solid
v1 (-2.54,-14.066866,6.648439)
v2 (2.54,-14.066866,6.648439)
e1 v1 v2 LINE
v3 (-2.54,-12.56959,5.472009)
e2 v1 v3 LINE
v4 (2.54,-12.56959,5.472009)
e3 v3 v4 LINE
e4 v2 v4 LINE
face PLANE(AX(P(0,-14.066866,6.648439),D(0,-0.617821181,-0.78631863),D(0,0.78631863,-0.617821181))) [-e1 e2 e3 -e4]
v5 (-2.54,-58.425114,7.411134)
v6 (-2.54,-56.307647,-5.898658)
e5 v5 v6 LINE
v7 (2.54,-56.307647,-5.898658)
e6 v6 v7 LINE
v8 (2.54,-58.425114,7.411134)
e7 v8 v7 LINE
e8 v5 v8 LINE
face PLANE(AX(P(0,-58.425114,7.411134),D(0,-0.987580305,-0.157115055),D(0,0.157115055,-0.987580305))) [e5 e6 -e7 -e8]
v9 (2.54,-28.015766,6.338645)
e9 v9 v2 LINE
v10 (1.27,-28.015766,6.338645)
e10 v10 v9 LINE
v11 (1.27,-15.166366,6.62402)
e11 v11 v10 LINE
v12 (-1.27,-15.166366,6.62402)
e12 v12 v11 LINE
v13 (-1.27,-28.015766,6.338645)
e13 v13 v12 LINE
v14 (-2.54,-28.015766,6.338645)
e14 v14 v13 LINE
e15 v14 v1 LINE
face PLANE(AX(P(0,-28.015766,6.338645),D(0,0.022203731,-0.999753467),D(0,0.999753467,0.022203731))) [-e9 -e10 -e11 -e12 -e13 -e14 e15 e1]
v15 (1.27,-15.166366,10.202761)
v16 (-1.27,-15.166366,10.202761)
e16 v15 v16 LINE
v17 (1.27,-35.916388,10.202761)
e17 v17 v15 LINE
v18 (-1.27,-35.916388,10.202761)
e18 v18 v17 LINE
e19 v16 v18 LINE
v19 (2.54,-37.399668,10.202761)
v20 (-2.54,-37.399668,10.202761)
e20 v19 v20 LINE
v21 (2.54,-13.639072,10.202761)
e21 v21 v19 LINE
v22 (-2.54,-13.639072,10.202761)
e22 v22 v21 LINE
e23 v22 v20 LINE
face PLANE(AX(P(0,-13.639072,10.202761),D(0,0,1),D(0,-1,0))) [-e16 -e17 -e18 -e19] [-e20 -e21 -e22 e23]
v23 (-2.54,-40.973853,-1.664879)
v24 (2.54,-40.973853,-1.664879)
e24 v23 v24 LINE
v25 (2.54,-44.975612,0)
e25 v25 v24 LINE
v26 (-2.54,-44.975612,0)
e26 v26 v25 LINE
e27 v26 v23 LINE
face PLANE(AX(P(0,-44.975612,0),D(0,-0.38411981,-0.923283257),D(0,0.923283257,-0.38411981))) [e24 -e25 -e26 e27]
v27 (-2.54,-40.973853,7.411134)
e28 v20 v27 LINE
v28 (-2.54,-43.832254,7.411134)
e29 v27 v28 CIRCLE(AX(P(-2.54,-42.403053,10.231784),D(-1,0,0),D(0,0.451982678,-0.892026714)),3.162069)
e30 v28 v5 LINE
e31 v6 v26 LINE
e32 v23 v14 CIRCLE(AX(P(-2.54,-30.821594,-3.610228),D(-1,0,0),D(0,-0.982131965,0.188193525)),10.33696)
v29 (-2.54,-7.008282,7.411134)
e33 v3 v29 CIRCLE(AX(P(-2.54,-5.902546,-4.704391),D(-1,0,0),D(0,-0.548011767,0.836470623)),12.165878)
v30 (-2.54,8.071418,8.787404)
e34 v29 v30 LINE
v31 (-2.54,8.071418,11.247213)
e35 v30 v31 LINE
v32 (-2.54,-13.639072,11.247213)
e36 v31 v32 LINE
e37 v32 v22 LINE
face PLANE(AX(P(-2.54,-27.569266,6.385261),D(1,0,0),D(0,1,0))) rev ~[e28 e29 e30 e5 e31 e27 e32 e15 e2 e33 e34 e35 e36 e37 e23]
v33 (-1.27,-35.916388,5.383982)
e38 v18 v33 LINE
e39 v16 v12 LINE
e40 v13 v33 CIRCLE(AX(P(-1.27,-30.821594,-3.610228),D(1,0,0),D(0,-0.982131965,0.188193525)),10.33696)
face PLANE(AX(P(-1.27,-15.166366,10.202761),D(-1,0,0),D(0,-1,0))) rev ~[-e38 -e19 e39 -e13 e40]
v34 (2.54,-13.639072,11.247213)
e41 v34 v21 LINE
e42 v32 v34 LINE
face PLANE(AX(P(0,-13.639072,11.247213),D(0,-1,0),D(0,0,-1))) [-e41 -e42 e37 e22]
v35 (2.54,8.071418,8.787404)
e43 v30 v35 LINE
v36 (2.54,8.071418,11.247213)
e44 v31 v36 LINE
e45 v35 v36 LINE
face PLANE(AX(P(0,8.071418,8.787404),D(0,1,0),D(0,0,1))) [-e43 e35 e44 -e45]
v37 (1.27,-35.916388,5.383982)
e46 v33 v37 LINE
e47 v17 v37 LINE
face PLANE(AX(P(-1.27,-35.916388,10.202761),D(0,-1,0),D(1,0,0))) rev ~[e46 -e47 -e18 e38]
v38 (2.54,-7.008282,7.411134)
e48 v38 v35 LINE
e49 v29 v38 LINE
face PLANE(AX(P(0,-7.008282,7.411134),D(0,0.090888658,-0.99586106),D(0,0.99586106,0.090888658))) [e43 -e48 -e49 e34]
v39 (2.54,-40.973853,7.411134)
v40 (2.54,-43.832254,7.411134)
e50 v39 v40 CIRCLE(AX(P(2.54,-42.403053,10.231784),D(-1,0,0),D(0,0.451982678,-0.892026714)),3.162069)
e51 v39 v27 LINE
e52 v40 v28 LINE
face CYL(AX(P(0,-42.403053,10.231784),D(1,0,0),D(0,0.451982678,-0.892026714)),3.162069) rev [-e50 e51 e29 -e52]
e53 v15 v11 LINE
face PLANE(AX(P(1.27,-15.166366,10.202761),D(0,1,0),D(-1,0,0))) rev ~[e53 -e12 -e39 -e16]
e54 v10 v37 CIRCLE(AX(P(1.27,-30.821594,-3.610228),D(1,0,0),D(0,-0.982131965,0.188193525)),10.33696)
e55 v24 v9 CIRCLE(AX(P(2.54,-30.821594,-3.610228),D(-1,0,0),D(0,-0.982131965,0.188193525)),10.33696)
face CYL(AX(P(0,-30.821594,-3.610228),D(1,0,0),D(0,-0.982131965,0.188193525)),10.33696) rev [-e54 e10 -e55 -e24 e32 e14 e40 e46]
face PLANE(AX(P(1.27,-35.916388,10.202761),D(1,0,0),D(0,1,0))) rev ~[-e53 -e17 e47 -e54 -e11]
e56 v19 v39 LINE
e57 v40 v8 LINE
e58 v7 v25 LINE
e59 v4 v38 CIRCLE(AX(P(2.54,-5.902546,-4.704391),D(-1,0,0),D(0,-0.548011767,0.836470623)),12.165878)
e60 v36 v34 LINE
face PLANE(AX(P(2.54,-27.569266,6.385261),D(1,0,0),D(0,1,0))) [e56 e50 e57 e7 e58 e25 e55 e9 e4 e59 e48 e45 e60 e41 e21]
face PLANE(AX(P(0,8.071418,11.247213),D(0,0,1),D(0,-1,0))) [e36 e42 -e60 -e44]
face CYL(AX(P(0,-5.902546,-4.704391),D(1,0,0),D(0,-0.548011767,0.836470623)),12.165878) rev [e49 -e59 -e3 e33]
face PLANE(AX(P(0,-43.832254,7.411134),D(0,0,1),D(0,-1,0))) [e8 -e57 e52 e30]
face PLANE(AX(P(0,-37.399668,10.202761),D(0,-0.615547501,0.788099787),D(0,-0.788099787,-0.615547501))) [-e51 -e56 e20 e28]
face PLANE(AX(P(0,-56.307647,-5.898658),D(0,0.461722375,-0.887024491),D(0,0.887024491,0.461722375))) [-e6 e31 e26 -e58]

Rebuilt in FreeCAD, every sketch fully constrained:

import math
import FreeCAD as App
import Part
import Sketcher
from FreeCAD import Vector
Q = App.Units.Quantity


def add_polygon(sketch, points):
    """Adds a closed chain of lines whose ends are joined by coincident constraints."""
    first, n = sketch.GeometryCount, len(points)
    for a, b in zip(points, points[1:] + points[:1]):
        sketch.addGeometry(Part.LineSegment(App.Vector(*a, 0), App.Vector(*b, 0)), False)
    for i in range(n):
        sketch.addConstraint(Sketcher.Constraint("Coincident", first + i, 2, first + (i + 1) % n, 1))

doc = App.newDocument("Part")
params = doc.addObject("Spreadsheet::Sheet", "Params")
for row, (alias, value) in enumerate([
    ("pad1_length", "0.2 in"),
    ("sketch2_width", "0.1 in"),
    ("pocket1_length", "1 in"),
], start=1):
    params.set(f"A{row}", alias)
    params.set(f"B{row}", "=" + value)
    params.setAlias(f"B{row}", alias)

body = doc.addObject("PartDesign::Body", "Body")

sketch1 = body.newObject("Sketcher::SketchObject", "Sketch")
sketch1.AttachmentSupport = (doc.getObject("YZ_Plane"), [""])
sketch1.MapMode = "FlatFace"
sketch1.addGeometry(Part.LineSegment(Vector(-43.8, 7.4, 0), Vector(-58.4, 7.4, 0)), False)
sketch1.addGeometry(Part.LineSegment(Vector(-58.4, 7.4, 0), Vector(-56.3, -5.9, 0)), False)
sketch1.addGeometry(Part.LineSegment(Vector(-56.3, -5.9, 0), Vector(-45, 0, 0)), False)
sketch1.addGeometry(Part.LineSegment(Vector(-45, 0, 0), Vector(-41, -1.7, 0)), False)
sketch1.addGeometry(Part.ArcOfCircle(Part.Circle(Vector(-30.8, -3.6, 0), Vector(0, 0, 1), 10.3), math.radians(74), math.radians(169)), False)
sketch1.addGeometry(Part.LineSegment(Vector(-28, 6.3, 0), Vector(-14.1, 6.6, 0)), False)
sketch1.addGeometry(Part.LineSegment(Vector(-14.1, 6.6, 0), Vector(-12.6, 5.5, 0)), False)
sketch1.addGeometry(Part.ArcOfCircle(Part.Circle(Vector(-5.9, -4.7, 0), Vector(0, 0, 1), 12.2), math.radians(95), math.radians(123)), False)
sketch1.addGeometry(Part.LineSegment(Vector(-7, 7.4, 0), Vector(8.1, 8.8, 0)), False)
sketch1.addGeometry(Part.LineSegment(Vector(8.1, 8.8, 0), Vector(8.1, 11.2, 0)), False)
sketch1.addGeometry(Part.LineSegment(Vector(8.1, 11.2, 0), Vector(-13.6, 11.2, 0)), False)
sketch1.addGeometry(Part.LineSegment(Vector(-13.6, 11.2, 0), Vector(-13.6, 10.2, 0)), False)
sketch1.addGeometry(Part.LineSegment(Vector(-13.6, 10.2, 0), Vector(-37.4, 10.2, 0)), False)
sketch1.addGeometry(Part.LineSegment(Vector(-37.4, 10.2, 0), Vector(-41, 7.4, 0)), False)
sketch1.addGeometry(Part.ArcOfCircle(Part.Circle(Vector(-42.4, 10.2, 0), Vector(0, 0, 1), 3.2), math.radians(-117), math.radians(-63)), False)
sketch1.addConstraint(Sketcher.Constraint("Coincident", 0, 2, 1, 1))
sketch1.addConstraint(Sketcher.Constraint("Coincident", 1, 2, 2, 1))
sketch1.addConstraint(Sketcher.Constraint("Coincident", 2, 2, 3, 1))
sketch1.addConstraint(Sketcher.Constraint("Coincident", 3, 2, 4, 2))
sketch1.addConstraint(Sketcher.Constraint("Coincident", 4, 1, 5, 1))
sketch1.addConstraint(Sketcher.Constraint("Coincident", 5, 2, 6, 1))
sketch1.addConstraint(Sketcher.Constraint("Coincident", 6, 2, 7, 2))
sketch1.addConstraint(Sketcher.Constraint("Tangent", 7, 1, 8, 1))
sketch1.addConstraint(Sketcher.Constraint("Coincident", 8, 2, 9, 1))
sketch1.addConstraint(Sketcher.Constraint("Coincident", 9, 2, 10, 1))
sketch1.addConstraint(Sketcher.Constraint("Coincident", 10, 2, 11, 1))
sketch1.addConstraint(Sketcher.Constraint("Coincident", 11, 2, 12, 1))
sketch1.addConstraint(Sketcher.Constraint("Coincident", 12, 2, 13, 1))
sketch1.addConstraint(Sketcher.Constraint("Coincident", 13, 2, 14, 2))
sketch1.addConstraint(Sketcher.Constraint("Coincident", 14, 1, 0, 1))
sketch1.addConstraint(Sketcher.Constraint("Horizontal", 0))
sketch1.addConstraint(Sketcher.Constraint("Vertical", 9))
sketch1.addConstraint(Sketcher.Constraint("Horizontal", 10))
sketch1.addConstraint(Sketcher.Constraint("Vertical", 11))
sketch1.addConstraint(Sketcher.Constraint("Horizontal", 12))
sketch1.addConstraint(Sketcher.Constraint("PointOnObject", 2, 2, -1))
sketch1.addConstraint(Sketcher.Constraint("Horizontal", 0, 2, 7, 1))
sketch1.addConstraint(Sketcher.Constraint("Horizontal", 7, 1, 13, 2))
sketch1.addConstraint(Sketcher.Constraint("Vertical", 3, 2, 13, 2))
sketch1.addConstraint(Sketcher.Constraint("Radius", 4, Q("10.33696 mm")))
sketch1.addConstraint(Sketcher.Constraint("Radius", 7, Q("12.165878 mm")))
sketch1.addConstraint(Sketcher.Constraint("Radius", 14, Q("3.162069 mm")))
sketch1.addConstraint(Sketcher.Constraint("DistanceX", 0, 2, 0, 1, Q("14.59286 mm")))
sketch1.addConstraint(Sketcher.Constraint("DistanceX", 10, 2, 10, 1, Q("21.71049 mm")))
sketch1.addConstraint(Sketcher.Constraint("DistanceY", 9, 1, 9, 2, Q("2.459809 mm")))
sketch1.addConstraint(Sketcher.Constraint("DistanceY", 11, 2, 11, 1, Q("1.044452 mm")))
sketch1.addConstraint(Sketcher.Constraint("DistanceX", 1, 2, 7, 3, Q("50.405101 mm")))
sketch1.addConstraint(Sketcher.Constraint("DistanceX", 14, 3, 3, 2, Q("1.429201 mm")))
sketch1.addConstraint(Sketcher.Constraint("DistanceX", 4, 1, 5, 2, Q("13.9489 mm")))
sketch1.addConstraint(Sketcher.Constraint("DistanceY", 7, 3, 6, 2, Q("10.1764 mm")))
sketch1.addConstraint(Sketcher.Constraint("DistanceX", 7, 1, 8, 2, Q("15.0797 mm")))
sketch1.addConstraint(Sketcher.Constraint("DistanceX", 12, 2, 4, 1, Q("9.383902 mm")))
sketch1.addConstraint(Sketcher.Constraint("Distance", 3, Q("4.33427 mm")))
sketch1.addConstraint(Sketcher.Constraint("Distance", 5, Q("13.95234 mm")))
sketch1.addConstraint(Sketcher.Constraint("Distance", 6, Q("1.904159 mm")))
sketch1.addConstraint(Sketcher.Constraint("DistanceX", 12, 2, 12, 1, Q("23.760596 mm")))
sketch1.addConstraint(Sketcher.Constraint("DistanceY", 7, 3, -1, 1, Q("4.704391 mm")))
sketch1.addConstraint(Sketcher.Constraint("DistanceY", 1, 2, -1, 1, Q("5.898658 mm")))
sketch1.addConstraint(Sketcher.Constraint("DistanceX", 2, 2, -1, 1, Q("44.975612 mm")))
sketch1.addConstraint(Sketcher.Constraint("DistanceY", 3, 2, -1, 1, Q("1.664879 mm")))
sketch1.addConstraint(Sketcher.Constraint("DistanceY", -1, 1, 5, 2, Q("6.648439 mm")))
sketch1.addConstraint(Sketcher.Constraint("DistanceX", 6, 2, -1, 1, Q("12.56959 mm")))
pad1 = body.newObject("PartDesign::Pad", "Pad")
pad1.Profile = sketch1
pad1.setExpression("Length", "Params.pad1_length")
pad1.Midplane = True

sketch2 = body.newObject("Sketcher::SketchObject", "Sketch001")
sketch2.AttachmentSupport = (doc.getObject("XY_Plane"), [""])
sketch2.MapMode = "FlatFace"
sketch2.AttachmentOffset = App.Placement(Vector(0, 0, 10.202761), App.Rotation())
add_polygon(sketch2, [(-1.3, -15.2), (-1.3, -35.9), (1.3, -35.9), (1.3, -15.2)])
sketch2.addConstraint(Sketcher.Constraint("Vertical", 0))
sketch2.addConstraint(Sketcher.Constraint("Horizontal", 1))
sketch2.addConstraint(Sketcher.Constraint("Vertical", 2))
sketch2.addConstraint(Sketcher.Constraint("Horizontal", 3))
sketch2.addConstraint(Sketcher.Constraint("DistanceX", 1, 1, 1, 2, Q("0.1 in")))
sketch2.addConstraint(Sketcher.Constraint("DistanceX", 0, 2, -1, 1, Q("0.05 in")))
sketch2.addConstraint(Sketcher.Constraint("DistanceY", 0, 2, 0, 1, Q("20.750022 mm")))
sketch2.addConstraint(Sketcher.Constraint("DistanceY", 0, 2, -1, 1, Q("35.916388 mm")))
sketch2.setExpression("Constraints[8]", "Params.sketch2_width")
pocket1 = body.newObject("PartDesign::Pocket", "Pocket")
pocket1.Profile = sketch2
pocket1.setExpression("Length", "Params.pocket1_length")

doc.recompute()
